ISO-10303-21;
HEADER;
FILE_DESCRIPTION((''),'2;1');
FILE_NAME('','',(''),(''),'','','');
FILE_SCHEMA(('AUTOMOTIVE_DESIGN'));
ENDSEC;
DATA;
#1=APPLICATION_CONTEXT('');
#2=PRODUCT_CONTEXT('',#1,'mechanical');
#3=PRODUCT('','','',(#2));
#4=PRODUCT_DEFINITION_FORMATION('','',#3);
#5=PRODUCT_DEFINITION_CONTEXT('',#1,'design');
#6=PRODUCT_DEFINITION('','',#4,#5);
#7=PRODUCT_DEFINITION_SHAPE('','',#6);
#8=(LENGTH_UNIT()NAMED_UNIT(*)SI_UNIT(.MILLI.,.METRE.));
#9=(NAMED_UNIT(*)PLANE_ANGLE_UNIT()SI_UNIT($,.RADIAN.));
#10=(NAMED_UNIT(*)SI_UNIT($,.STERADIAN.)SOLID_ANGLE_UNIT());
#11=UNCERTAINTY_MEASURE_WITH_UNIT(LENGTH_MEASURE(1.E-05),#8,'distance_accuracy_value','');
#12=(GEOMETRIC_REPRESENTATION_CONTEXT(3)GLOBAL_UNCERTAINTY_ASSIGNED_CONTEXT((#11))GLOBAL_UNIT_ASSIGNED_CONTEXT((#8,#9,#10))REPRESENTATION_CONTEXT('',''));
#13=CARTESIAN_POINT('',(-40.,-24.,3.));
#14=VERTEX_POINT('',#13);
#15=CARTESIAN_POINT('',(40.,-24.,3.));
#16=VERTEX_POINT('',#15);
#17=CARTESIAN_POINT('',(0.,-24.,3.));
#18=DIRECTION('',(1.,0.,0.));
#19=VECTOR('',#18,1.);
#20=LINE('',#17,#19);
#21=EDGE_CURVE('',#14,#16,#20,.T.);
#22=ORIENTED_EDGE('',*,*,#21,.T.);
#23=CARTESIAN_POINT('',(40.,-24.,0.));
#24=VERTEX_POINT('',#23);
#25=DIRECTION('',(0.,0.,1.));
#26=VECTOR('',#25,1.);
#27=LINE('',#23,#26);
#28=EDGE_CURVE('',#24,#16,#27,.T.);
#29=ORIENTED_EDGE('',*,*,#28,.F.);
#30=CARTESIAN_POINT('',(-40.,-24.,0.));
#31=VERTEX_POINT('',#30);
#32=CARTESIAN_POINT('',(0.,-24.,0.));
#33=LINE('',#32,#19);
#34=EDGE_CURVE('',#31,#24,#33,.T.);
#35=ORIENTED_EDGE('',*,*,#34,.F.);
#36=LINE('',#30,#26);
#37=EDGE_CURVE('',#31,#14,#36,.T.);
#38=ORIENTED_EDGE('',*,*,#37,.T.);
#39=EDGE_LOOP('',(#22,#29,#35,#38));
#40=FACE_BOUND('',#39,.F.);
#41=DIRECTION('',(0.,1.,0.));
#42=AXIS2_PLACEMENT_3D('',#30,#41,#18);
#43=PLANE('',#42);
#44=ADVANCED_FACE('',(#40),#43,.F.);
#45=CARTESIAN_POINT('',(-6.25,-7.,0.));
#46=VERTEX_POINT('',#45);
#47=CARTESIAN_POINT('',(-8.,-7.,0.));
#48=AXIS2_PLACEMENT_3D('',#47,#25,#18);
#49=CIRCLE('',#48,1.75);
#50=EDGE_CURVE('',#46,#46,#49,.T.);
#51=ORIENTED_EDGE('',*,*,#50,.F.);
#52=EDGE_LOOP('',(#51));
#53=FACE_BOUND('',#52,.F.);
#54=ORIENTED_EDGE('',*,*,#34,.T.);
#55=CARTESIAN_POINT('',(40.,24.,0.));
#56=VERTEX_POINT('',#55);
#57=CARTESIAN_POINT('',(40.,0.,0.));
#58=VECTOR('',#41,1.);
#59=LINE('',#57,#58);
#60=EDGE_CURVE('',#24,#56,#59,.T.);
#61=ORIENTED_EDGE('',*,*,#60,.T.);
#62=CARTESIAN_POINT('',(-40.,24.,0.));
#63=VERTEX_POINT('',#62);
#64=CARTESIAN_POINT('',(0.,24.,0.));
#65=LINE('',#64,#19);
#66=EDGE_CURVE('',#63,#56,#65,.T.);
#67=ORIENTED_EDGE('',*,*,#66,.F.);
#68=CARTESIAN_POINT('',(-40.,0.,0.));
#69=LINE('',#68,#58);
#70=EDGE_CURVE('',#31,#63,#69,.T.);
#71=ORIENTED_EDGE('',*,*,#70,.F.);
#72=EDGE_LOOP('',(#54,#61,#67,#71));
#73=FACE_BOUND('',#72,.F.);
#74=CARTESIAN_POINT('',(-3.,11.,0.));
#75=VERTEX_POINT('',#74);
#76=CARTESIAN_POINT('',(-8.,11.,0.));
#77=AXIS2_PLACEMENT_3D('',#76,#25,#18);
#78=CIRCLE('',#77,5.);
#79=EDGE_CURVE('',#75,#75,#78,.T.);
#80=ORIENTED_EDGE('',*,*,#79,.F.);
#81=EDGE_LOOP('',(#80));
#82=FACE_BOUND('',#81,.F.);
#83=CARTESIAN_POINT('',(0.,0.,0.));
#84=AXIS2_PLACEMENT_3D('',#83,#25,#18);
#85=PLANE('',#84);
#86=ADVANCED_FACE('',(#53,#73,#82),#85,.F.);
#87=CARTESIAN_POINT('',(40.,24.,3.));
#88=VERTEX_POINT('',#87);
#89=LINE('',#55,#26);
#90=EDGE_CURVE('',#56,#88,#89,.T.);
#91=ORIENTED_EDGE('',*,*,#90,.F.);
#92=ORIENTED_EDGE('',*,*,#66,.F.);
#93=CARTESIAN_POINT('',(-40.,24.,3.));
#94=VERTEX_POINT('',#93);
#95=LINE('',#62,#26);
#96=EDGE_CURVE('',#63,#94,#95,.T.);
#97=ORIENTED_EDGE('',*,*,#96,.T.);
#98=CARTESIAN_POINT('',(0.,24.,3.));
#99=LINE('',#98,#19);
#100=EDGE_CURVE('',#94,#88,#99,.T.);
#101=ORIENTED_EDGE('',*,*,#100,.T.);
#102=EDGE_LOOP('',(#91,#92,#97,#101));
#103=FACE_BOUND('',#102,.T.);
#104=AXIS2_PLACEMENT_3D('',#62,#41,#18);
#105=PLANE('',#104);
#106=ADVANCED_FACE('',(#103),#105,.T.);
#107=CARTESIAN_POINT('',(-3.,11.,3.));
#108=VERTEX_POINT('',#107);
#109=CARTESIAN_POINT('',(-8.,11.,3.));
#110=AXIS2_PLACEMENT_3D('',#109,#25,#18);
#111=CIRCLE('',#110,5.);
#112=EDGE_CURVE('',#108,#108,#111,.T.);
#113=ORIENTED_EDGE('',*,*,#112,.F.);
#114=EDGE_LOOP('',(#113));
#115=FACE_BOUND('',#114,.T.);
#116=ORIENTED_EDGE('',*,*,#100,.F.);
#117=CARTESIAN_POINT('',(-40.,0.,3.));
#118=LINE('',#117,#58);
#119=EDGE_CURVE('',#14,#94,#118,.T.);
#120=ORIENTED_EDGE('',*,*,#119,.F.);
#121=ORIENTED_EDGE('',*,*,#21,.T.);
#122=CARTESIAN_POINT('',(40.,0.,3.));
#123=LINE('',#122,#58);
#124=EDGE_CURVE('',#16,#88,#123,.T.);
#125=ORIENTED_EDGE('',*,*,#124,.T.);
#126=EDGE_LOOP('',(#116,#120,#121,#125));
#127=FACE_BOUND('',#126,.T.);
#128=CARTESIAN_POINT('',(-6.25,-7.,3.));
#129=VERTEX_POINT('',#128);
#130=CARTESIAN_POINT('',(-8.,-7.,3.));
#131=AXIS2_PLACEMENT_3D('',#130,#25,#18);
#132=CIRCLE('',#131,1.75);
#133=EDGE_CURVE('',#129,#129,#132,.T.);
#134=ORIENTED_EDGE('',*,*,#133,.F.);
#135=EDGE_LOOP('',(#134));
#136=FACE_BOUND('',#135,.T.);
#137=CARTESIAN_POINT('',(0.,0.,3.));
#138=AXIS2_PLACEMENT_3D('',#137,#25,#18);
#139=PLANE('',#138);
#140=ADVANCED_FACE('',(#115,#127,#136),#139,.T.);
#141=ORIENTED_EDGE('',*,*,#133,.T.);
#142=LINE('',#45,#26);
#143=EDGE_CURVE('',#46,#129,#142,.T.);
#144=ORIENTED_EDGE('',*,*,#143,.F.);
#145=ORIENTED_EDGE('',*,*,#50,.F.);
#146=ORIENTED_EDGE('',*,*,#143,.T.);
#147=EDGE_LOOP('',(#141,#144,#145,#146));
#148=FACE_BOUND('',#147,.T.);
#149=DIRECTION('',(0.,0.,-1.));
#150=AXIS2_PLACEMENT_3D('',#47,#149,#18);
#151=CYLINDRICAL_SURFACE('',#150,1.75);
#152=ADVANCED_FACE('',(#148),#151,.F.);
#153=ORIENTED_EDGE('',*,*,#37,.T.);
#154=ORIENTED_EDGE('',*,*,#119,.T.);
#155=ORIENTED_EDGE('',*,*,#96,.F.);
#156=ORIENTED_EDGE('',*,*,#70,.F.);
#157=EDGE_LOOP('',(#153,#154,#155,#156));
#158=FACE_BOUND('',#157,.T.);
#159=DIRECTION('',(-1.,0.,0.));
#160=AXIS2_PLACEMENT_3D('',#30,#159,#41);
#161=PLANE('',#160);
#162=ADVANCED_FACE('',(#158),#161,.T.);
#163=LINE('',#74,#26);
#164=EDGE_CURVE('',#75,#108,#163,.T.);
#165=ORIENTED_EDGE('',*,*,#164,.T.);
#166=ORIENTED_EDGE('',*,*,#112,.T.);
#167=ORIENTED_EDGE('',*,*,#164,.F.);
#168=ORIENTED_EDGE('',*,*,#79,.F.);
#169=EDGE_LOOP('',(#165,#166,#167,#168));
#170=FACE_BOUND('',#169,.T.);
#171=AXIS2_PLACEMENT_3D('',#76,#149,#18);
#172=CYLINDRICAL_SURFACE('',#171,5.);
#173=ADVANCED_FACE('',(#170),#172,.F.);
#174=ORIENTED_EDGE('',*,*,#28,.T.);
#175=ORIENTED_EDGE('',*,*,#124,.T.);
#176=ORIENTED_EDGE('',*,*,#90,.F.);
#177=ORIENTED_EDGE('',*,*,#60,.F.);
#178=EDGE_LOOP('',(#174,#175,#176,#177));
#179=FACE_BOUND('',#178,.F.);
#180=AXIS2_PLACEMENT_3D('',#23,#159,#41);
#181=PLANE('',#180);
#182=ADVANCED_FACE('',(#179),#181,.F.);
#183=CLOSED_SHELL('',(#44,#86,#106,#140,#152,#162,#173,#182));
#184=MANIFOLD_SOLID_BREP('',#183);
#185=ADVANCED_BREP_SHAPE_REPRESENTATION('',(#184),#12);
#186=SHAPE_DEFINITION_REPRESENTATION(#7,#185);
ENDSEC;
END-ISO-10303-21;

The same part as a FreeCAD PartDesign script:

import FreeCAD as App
import Part
import Sketcher

V = App.Vector


def add_polygon(sketch, points):
    """Adds a closed chain of lines whose ends are joined by coincident constraints."""
    first, n = sketch.GeometryCount, len(points)
    for a, b in zip(points, points[1:] + points[:1]):
        sketch.addGeometry(Part.LineSegment(App.Vector(*a, 0), App.Vector(*b, 0)), False)
    for i in range(n):
        sketch.addConstraint(Sketcher.Constraint("Coincident", first + i, 2, first + (i + 1) % n, 1))

doc = App.newDocument("Part")
params = doc.addObject("Spreadsheet::Sheet", "Params")
for row, (alias, value) in enumerate([
    ("sketch1_diameter", "10 mm"),
    ("sketch1_diameter2", "3.5 mm"),
    ("sketch1_width", "80 mm"),
    ("sketch1_height", "48 mm"),
    ("pad1_length", "3 mm"),
], start=1):
    params.set(f"A{row}", alias)
    params.set(f"B{row}", "=" + value)
    params.setAlias(f"B{row}", alias)

body = doc.addObject("PartDesign::Body", "Body")

# Sketch on XY plane
sketch1 = doc.addObject("Sketcher::SketchObject", "Sketch")
body.addObject(sketch1)
sketch1.AttachmentSupport = (doc.XY_Plane, [""])
sketch1.MapMode = "FlatFace"
add_polygon(sketch1, [(-40, 24), (-40, -24), (40, -24), (40, 24)])  # lines 0-3
sketch1.addGeometry(Part.Circle(V(-8, -7, 0), V(0, 0, 1), 1.8), False)  # 4
sketch1.addGeometry(Part.Circle(V(-8, 11, 0), V(0, 0, 1), 5), False)  # 5
sketch1.addConstraint([
    Sketcher.Constraint("Vertical", 0),
    Sketcher.Constraint("Horizontal", 1),
    Sketcher.Constraint("Vertical", 2),
    Sketcher.Constraint("Horizontal", 3),
    Sketcher.Constraint("Symmetric", 0, 2, 2, 2, -1, 1),
    Sketcher.Constraint("Vertical", 4, 3, 5, 3),
    Sketcher.Constraint("Diameter", 5, 10.0),
    Sketcher.Constraint("Diameter", 4, 3.5),
    Sketcher.Constraint("DistanceX", 1, 1, 1, 2, 80.0),
    Sketcher.Constraint("DistanceY", 0, 2, 0, 1, 48.0),
    Sketcher.Constraint("DistanceX", 4, 3, -1, 1, 8.0),
    Sketcher.Constraint("DistanceY", 4, 3, -1, 1, 7.0),
    Sketcher.Constraint("DistanceY", -1, 1, 5, 3, 11.0),
])
sketch1.setExpression("Constraints[10]", "Params.sketch1_diameter")
sketch1.setExpression("Constraints[11]", "Params.sketch1_diameter2")
sketch1.setExpression("Constraints[12]", "Params.sketch1_width")
sketch1.setExpression("Constraints[13]", "Params.sketch1_height")
pad1 = doc.addObject("PartDesign::Pad", "Pad")
body.addObject(pad1)
pad1.Profile = sketch1
pad1.setExpression("Length", "Params.pad1_length")

doc.recompute()
